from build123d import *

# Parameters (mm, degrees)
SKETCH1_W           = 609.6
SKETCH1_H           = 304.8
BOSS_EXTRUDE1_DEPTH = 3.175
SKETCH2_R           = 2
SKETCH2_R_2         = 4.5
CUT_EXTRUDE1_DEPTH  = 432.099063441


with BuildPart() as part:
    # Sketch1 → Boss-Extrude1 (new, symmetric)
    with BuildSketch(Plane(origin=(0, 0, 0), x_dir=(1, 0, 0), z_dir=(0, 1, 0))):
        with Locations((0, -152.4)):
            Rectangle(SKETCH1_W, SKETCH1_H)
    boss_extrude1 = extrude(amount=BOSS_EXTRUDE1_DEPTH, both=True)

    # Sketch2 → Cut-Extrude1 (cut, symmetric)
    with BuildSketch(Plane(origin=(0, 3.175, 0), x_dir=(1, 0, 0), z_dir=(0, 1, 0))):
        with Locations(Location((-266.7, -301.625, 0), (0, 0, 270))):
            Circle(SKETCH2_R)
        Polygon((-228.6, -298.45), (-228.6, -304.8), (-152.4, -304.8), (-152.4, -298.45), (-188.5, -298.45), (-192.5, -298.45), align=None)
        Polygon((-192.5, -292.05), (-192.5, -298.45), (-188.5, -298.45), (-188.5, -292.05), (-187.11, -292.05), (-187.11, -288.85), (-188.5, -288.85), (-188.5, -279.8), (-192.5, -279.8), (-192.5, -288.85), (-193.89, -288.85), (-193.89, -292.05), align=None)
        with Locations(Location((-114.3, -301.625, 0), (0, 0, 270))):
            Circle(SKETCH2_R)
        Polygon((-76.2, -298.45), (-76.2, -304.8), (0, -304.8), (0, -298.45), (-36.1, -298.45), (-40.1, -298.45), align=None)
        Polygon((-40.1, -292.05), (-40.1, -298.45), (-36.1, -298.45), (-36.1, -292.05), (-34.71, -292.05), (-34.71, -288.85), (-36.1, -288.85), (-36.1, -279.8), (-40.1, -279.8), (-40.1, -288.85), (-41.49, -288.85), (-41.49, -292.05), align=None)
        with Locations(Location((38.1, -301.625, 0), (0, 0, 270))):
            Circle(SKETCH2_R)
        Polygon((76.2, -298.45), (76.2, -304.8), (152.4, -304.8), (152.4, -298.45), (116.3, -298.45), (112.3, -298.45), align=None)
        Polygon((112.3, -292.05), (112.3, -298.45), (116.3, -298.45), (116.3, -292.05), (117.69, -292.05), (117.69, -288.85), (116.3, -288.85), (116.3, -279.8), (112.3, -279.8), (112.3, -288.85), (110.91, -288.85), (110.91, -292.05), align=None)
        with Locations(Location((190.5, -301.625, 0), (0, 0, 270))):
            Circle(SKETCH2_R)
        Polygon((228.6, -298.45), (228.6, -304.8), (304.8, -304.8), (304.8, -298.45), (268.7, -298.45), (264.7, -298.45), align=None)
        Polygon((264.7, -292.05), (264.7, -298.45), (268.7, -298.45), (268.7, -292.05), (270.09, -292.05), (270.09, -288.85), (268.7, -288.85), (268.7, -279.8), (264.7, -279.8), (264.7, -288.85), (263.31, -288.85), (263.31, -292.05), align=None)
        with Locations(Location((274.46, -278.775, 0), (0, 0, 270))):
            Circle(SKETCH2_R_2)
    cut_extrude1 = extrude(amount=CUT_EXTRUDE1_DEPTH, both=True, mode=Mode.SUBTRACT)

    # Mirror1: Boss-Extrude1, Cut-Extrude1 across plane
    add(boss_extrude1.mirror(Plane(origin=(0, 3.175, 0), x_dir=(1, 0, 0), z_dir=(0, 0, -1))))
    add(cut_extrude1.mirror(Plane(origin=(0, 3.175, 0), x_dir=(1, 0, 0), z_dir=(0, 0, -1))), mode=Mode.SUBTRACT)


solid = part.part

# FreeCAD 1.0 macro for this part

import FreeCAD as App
import Part
import Sketcher
from FreeCAD import Vector


def add_polygon(sketch, points):
    """Adds a closed chain of lines whose ends are joined by coincident constraints."""
    first, n = sketch.GeometryCount, len(points)
    for a, b in zip(points, points[1:] + points[:1]):
        sketch.addGeometry(Part.LineSegment(App.Vector(*a, 0), App.Vector(*b, 0)), False)
    for i in range(n):
        sketch.addConstraint(Sketcher.Constraint("Coincident", first + i, 2, first + (i + 1) % n, 1))

doc = App.newDocument("Part")
body = doc.addObject("PartDesign::Body", "Body")

# Sketch on XZ plane
sketch1 = body.newObject("Sketcher::SketchObject", "Sketch")
sketch1.AttachmentSupport = (doc.getObject("XZ_Plane"), [""])
sketch1.MapMode = "FlatFace"
add_polygon(sketch1, [(-305, 0), (-305, 305), (305, 305), (305, 0)])  # lines 0-3
sketch1.addConstraint([
    Sketcher.Constraint("Vertical", 0),
    Sketcher.Constraint("Horizontal", 1),
    Sketcher.Constraint("Vertical", 2),
    Sketcher.Constraint("Horizontal", 3),
    Sketcher.Constraint("Symmetric", 2, 2, 3, 2, -1, 1),
    Sketcher.Constraint("DistanceX", 1, 1, 1, 2, 609.6),
    Sketcher.Constraint("DistanceY", 0, 1, 0, 2, 304.8),
])
pad1 = body.newObject("PartDesign::Pad", "Pad")
pad1.Profile = sketch1
pad1.Length = 6.35
pad1.Midplane = True

# Sketch on XZ plane
sketch2 = body.newObject("Sketcher::SketchObject", "Sketch001")
sketch2.AttachmentSupport = (doc.getObject("XZ_Plane"), [""])
sketch2.MapMode = "FlatFace"
sketch2.AttachmentOffset = App.Placement(Vector(0, 0, -3.175), App.Rotation())
sketch2.addGeometry(Part.Circle(Vector(-266.7, 301.6, 0), Vector(0, 0, 1), 2), False)  # 0
add_polygon(sketch2, [(-228.6, 298.4), (-228.6, 304.8), (-152.4, 304.8), (-152.4, 298.4), (-188.5, 298.4), (-188.5, 292.1), (-187.1, 292.1), (-187.1, 288.9), (-188.5, 288.9), (-188.5, 279.8), (-192.5, 279.8), (-192.5, 288.9), (-193.9, 288.9), (-193.9, 292.1), (-192.5, 292.1), (-192.5, 298.4)])  # lines 1-16
sketch2.addGeometry(Part.Circle(Vector(-114.3, 301.6, 0), Vector(0, 0, 1), 2), False)  # 17
add_polygon(sketch2, [(-76.2, 298.4), (-76.2, 304.8), (0, 304.8), (0, 298.4), (-36.1, 298.4), (-36.1, 292.1), (-34.7, 292.1), (-34.7, 288.9), (-36.1, 288.9), (-36.1, 279.8), (-40.1, 279.8), (-40.1, 288.9), (-41.5, 288.9), (-41.5, 292.1), (-40.1, 292.1), (-40.1, 298.4)])  # lines 18-33
sketch2.addGeometry(Part.Circle(Vector(38.1, 301.6, 0), Vector(0, 0, 1), 2), False)  # 34
add_polygon(sketch2, [(76.2, 298.4), (76.2, 304.8), (152.4, 304.8), (152.4, 298.4), (116.3, 298.4), (116.3, 292.1), (117.7, 292.1), (117.7, 288.9), (116.3, 288.9), (116.3, 279.8), (112.3, 279.8), (112.3, 288.9), (110.9, 288.9), (110.9, 292.1), (112.3, 292.1), (112.3, 298.4)])  # lines 35-50
sketch2.addGeometry(Part.Circle(Vector(190.5, 301.6, 0), Vector(0, 0, 1), 2), False)  # 51
add_polygon(sketch2, [(228.6, 298.4), (228.6, 304.8), (304.8, 304.8), (304.8, 298.4), (268.7, 298.4), (268.7, 292.1), (270.1, 292.1), (270.1, 288.9), (268.7, 288.9), (268.7, 279.8), (264.7, 279.8), (264.7, 288.9), (263.3, 288.9), (263.3, 292.1), (264.7, 292.1), (264.7, 298.4)])  # lines 52-67
sketch2.addGeometry(Part.Circle(Vector(274.5, 278.8, 0), Vector(0, 0, 1), 4.5), False)  # 68
sketch2.addConstraint([
    Sketcher.Constraint("Vertical", 1),
    Sketcher.Constraint("Horizontal", 2),
    Sketcher.Constraint("Vertical", 3),
    Sketcher.Constraint("Horizontal", 4),
    Sketcher.Constraint("Vertical", 5),
    Sketcher.Constraint("Horizontal", 6),
    Sketcher.Constraint("Vertical", 7),
    Sketcher.Constraint("Horizontal", 8),
    Sketcher.Constraint("Vertical", 9),
    Sketcher.Constraint("Horizontal", 10),
    Sketcher.Constraint("Vertical", 11),
    Sketcher.Constraint("Horizontal", 12),
    Sketcher.Constraint("Vertical", 13),
    Sketcher.Constraint("Horizontal", 14),
    Sketcher.Constraint("Vertical", 15),
    Sketcher.Constraint("Horizontal", 16),
    Sketcher.Constraint("Vertical", 18),
    Sketcher.Constraint("Horizontal", 19),
    Sketcher.Constraint("Vertical", 20),
    Sketcher.Constraint("Horizontal", 21),
    Sketcher.Constraint("Vertical", 22),
    Sketcher.Constraint("Horizontal", 23),
    Sketcher.Constraint("Vertical", 24),
    Sketcher.Constraint("Horizontal", 25),
    Sketcher.Constraint("Vertical", 26),
    Sketcher.Constraint("Horizontal", 27),
    Sketcher.Constraint("Vertical", 28),
    Sketcher.Constraint("Horizontal", 29),
    Sketcher.Constraint("Vertical", 30),
    Sketcher.Constraint("Horizontal", 31),
    Sketcher.Constraint("Vertical", 32),
    Sketcher.Constraint("Horizontal", 33),
    Sketcher.Constraint("Vertical", 35),
    Sketcher.Constraint("Horizontal", 36),
    Sketcher.Constraint("Vertical", 37),
    Sketcher.Constraint("Horizontal", 38),
    Sketcher.Constraint("Vertical", 39),
    Sketcher.Constraint("Horizontal", 40),
    Sketcher.Constraint("Vertical", 41),
    Sketcher.Constraint("Horizontal", 42),
    Sketcher.Constraint("Vertical", 43),
    Sketcher.Constraint("Horizontal", 44),
    Sketcher.Constraint("Vertical", 45),
    Sketcher.Constraint("Horizontal", 46),
    Sketcher.Constraint("Vertical", 47),
    Sketcher.Constraint("Horizontal", 48),
    Sketcher.Constraint("Vertical", 49),
    Sketcher.Constraint("Horizontal", 50),
    Sketcher.Constraint("Vertical", 52),
    Sketcher.Constraint("Horizontal", 53),
    Sketcher.Constraint("Vertical", 54),
    Sketcher.Constraint("Horizontal", 55),
    Sketcher.Constraint("Vertical", 56),
    Sketcher.Constraint("Horizontal", 57),
    Sketcher.Constraint("Vertical", 58),
    Sketcher.Constraint("Horizontal", 59),
    Sketcher.Constraint("Vertical", 60),
    Sketcher.Constraint("Horizontal", 61),
    Sketcher.Constraint("Vertical", 62),
    Sketcher.Constraint("Horizontal", 63),
    Sketcher.Constraint("Vertical", 64),
    Sketcher.Constraint("Horizontal", 65),
    Sketcher.Constraint("Vertical", 66),
    Sketcher.Constraint("Horizontal", 67),
    Sketcher.Constraint("Equal", 0, 17),
    Sketcher.Constraint("Equal", 17, 34),
    Sketcher.Constraint("Equal", 34, 51),
    Sketcher.Constraint("Symmetric", 18, 2, 35, 2, -2),
    Sketcher.Constraint("Symmetric", 2, 2, 36, 2, -2),
    Sketcher.Constraint("Symmetric", 1, 2, 52, 2, -2),
    Sketcher.Constraint("PointOnObject", 19, 2, -2),
    Sketcher.Constraint("Horizontal", 0, 3, 17, 3),
    Sketcher.Constraint("Horizontal", 17, 3, 34, 3),
    Sketcher.Constraint("Horizontal", 34, 3, 51, 3),
    Sketcher.Constraint("Horizontal", 8, 2, 11, 2),
    Sketcher.Constraint("Horizontal", 6, 2, 13, 2),
    Sketcher.Constraint("Horizontal", 4, 2, 15, 2),
    Sketcher.Constraint("Horizontal", 16, 2, 20, 2),
    Sketcher.Constraint("Horizontal", 14, 2, 22, 2),
    Sketcher.Constraint("Horizontal", 12, 2, 24, 2),
    Sketcher.Constraint("Horizontal", 10, 2, 26, 2),
    Sketcher.Constraint("Horizontal", 25, 2, 28, 2),
    Sketcher.Constraint("Horizontal", 23, 2, 30, 2),
    Sketcher.Constraint("Horizontal", 21, 2, 32, 2),
    Sketcher.Constraint("Horizontal", 33, 2, 37, 2),
    Sketcher.Constraint("Horizontal", 31, 2, 39, 2),
    Sketcher.Constraint("Horizontal", 29, 2, 41, 2),
    Sketcher.Constraint("Horizontal", 27, 2, 43, 2),
    Sketcher.Constraint("Horizontal", 42, 2, 45, 2),
    Sketcher.Constraint("Horizontal", 40, 2, 47, 2),
    Sketcher.Constraint("Horizontal", 38, 2, 49, 2),
    Sketcher.Constraint("Horizontal", 50, 2, 54, 2),
    Sketcher.Constraint("Horizontal", 48, 2, 56, 2),
    Sketcher.Constraint("Horizontal", 46, 2, 58, 2),
    Sketcher.Constraint("Horizontal", 44, 2, 60, 2),
    Sketcher.Constraint("Horizontal", 59, 2, 62, 2),
    Sketcher.Constraint("Horizontal", 57, 2, 64, 2),
    Sketcher.Constraint("Horizontal", 55, 2, 66, 2),
    Sketcher.Constraint("Vertical", 5, 2, 8, 2),
    Sketcher.Constraint("Vertical", 11, 2, 14, 2),
    Sketcher.Constraint("Vertical", 22, 2, 25, 2),
    Sketcher.Constraint("Vertical", 28, 2, 31, 2),
    Sketcher.Constraint("Vertical", 39, 2, 42, 2),
    Sketcher.Constraint("Vertical", 45, 2, 48, 2),
    Sketcher.Constraint("Vertical", 56, 2, 59, 2),
    Sketcher.Constraint("Vertical", 62, 2, 65, 2),
    Sketcher.Constraint("Equal", 8, 12),
    Sketcher.Constraint("Equal", 4, 16),
    Sketcher.Constraint("Equal", 2, 19),
    Sketcher.Constraint("Equal", 16, 21),
    Sketcher.Constraint("Equal", 14, 23),
    Sketcher.Constraint("Equal", 10, 27),
    Sketcher.Constraint("Equal", 25, 29),
    Sketcher.Constraint("Equal", 19, 36),
    Sketcher.Constraint("Equal", 33, 38),
    Sketcher.Constraint("Equal", 31, 40),
    Sketcher.Constraint("Equal", 27, 44),
    Sketcher.Constraint("Equal", 42, 46),
    Sketcher.Constraint("Equal", 36, 53),
    Sketcher.Constraint("Equal", 50, 55),
    Sketcher.Constraint("Equal", 48, 57),
    Sketcher.Constraint("Equal", 44, 61),
    Sketcher.Constraint("Equal", 59, 63),
    Sketcher.Constraint("Diameter", 0, 4.0),
    Sketcher.Constraint("Diameter", 68, 9.0),
    Sketcher.Constraint("DistanceX", 10, 2, 10, 1, 4.0),
    Sketcher.Constraint("DistanceX", 2, 1, 2, 2, 76.2),
    Sketcher.Constraint("DistanceY", 5, 2, 5, 1, 6.4),
    Sketcher.Constraint("DistanceY", 7, 2, 7, 1, 3.2),
    Sketcher.Constraint("DistanceX", 6, 1, 6, 2, 1.39),
    Sketcher.Constraint("DistanceY", 1, 1, 1, 2, 6.35),
    Sketcher.Constraint("DistanceY", 9, 2, 9, 1, 9.05),
    Sketcher.Constraint("DistanceX", 0, 3, -1, 1, 266.7),
    Sketcher.Constraint("DistanceX", 17, 3, -1, 1, 114.3),
    Sketcher.Constraint("DistanceX", -1, 1, 34, 3, 38.1),
    Sketcher.Constraint("DistanceX", -1, 1, 51, 3, 190.5),
    Sketcher.Constraint("DistanceY", -1, 1, 1, 2, 304.8),
    Sketcher.Constraint("DistanceX", -1, 1, 68, 3, 274.46),
    Sketcher.Constraint("DistanceY", -1, 1, 0, 3, 301.625),
    Sketcher.Constraint("DistanceY", -1, 1, 68, 3, 278.775),
])
pocket1 = body.newObject("PartDesign::Pocket", "Pocket")
pocket1.Profile = sketch2
pocket1.Length = 864.198127
pocket1.Midplane = True
doc.recompute()

mirrored = body.newObject("PartDesign::Mirrored", "Mirrored")
mirrored.Originals = [pad1, pocket1]
mirrored.MirrorPlane = (doc.getObject("XY_Plane"), [""])
body.Tip = mirrored

doc.recompute()
